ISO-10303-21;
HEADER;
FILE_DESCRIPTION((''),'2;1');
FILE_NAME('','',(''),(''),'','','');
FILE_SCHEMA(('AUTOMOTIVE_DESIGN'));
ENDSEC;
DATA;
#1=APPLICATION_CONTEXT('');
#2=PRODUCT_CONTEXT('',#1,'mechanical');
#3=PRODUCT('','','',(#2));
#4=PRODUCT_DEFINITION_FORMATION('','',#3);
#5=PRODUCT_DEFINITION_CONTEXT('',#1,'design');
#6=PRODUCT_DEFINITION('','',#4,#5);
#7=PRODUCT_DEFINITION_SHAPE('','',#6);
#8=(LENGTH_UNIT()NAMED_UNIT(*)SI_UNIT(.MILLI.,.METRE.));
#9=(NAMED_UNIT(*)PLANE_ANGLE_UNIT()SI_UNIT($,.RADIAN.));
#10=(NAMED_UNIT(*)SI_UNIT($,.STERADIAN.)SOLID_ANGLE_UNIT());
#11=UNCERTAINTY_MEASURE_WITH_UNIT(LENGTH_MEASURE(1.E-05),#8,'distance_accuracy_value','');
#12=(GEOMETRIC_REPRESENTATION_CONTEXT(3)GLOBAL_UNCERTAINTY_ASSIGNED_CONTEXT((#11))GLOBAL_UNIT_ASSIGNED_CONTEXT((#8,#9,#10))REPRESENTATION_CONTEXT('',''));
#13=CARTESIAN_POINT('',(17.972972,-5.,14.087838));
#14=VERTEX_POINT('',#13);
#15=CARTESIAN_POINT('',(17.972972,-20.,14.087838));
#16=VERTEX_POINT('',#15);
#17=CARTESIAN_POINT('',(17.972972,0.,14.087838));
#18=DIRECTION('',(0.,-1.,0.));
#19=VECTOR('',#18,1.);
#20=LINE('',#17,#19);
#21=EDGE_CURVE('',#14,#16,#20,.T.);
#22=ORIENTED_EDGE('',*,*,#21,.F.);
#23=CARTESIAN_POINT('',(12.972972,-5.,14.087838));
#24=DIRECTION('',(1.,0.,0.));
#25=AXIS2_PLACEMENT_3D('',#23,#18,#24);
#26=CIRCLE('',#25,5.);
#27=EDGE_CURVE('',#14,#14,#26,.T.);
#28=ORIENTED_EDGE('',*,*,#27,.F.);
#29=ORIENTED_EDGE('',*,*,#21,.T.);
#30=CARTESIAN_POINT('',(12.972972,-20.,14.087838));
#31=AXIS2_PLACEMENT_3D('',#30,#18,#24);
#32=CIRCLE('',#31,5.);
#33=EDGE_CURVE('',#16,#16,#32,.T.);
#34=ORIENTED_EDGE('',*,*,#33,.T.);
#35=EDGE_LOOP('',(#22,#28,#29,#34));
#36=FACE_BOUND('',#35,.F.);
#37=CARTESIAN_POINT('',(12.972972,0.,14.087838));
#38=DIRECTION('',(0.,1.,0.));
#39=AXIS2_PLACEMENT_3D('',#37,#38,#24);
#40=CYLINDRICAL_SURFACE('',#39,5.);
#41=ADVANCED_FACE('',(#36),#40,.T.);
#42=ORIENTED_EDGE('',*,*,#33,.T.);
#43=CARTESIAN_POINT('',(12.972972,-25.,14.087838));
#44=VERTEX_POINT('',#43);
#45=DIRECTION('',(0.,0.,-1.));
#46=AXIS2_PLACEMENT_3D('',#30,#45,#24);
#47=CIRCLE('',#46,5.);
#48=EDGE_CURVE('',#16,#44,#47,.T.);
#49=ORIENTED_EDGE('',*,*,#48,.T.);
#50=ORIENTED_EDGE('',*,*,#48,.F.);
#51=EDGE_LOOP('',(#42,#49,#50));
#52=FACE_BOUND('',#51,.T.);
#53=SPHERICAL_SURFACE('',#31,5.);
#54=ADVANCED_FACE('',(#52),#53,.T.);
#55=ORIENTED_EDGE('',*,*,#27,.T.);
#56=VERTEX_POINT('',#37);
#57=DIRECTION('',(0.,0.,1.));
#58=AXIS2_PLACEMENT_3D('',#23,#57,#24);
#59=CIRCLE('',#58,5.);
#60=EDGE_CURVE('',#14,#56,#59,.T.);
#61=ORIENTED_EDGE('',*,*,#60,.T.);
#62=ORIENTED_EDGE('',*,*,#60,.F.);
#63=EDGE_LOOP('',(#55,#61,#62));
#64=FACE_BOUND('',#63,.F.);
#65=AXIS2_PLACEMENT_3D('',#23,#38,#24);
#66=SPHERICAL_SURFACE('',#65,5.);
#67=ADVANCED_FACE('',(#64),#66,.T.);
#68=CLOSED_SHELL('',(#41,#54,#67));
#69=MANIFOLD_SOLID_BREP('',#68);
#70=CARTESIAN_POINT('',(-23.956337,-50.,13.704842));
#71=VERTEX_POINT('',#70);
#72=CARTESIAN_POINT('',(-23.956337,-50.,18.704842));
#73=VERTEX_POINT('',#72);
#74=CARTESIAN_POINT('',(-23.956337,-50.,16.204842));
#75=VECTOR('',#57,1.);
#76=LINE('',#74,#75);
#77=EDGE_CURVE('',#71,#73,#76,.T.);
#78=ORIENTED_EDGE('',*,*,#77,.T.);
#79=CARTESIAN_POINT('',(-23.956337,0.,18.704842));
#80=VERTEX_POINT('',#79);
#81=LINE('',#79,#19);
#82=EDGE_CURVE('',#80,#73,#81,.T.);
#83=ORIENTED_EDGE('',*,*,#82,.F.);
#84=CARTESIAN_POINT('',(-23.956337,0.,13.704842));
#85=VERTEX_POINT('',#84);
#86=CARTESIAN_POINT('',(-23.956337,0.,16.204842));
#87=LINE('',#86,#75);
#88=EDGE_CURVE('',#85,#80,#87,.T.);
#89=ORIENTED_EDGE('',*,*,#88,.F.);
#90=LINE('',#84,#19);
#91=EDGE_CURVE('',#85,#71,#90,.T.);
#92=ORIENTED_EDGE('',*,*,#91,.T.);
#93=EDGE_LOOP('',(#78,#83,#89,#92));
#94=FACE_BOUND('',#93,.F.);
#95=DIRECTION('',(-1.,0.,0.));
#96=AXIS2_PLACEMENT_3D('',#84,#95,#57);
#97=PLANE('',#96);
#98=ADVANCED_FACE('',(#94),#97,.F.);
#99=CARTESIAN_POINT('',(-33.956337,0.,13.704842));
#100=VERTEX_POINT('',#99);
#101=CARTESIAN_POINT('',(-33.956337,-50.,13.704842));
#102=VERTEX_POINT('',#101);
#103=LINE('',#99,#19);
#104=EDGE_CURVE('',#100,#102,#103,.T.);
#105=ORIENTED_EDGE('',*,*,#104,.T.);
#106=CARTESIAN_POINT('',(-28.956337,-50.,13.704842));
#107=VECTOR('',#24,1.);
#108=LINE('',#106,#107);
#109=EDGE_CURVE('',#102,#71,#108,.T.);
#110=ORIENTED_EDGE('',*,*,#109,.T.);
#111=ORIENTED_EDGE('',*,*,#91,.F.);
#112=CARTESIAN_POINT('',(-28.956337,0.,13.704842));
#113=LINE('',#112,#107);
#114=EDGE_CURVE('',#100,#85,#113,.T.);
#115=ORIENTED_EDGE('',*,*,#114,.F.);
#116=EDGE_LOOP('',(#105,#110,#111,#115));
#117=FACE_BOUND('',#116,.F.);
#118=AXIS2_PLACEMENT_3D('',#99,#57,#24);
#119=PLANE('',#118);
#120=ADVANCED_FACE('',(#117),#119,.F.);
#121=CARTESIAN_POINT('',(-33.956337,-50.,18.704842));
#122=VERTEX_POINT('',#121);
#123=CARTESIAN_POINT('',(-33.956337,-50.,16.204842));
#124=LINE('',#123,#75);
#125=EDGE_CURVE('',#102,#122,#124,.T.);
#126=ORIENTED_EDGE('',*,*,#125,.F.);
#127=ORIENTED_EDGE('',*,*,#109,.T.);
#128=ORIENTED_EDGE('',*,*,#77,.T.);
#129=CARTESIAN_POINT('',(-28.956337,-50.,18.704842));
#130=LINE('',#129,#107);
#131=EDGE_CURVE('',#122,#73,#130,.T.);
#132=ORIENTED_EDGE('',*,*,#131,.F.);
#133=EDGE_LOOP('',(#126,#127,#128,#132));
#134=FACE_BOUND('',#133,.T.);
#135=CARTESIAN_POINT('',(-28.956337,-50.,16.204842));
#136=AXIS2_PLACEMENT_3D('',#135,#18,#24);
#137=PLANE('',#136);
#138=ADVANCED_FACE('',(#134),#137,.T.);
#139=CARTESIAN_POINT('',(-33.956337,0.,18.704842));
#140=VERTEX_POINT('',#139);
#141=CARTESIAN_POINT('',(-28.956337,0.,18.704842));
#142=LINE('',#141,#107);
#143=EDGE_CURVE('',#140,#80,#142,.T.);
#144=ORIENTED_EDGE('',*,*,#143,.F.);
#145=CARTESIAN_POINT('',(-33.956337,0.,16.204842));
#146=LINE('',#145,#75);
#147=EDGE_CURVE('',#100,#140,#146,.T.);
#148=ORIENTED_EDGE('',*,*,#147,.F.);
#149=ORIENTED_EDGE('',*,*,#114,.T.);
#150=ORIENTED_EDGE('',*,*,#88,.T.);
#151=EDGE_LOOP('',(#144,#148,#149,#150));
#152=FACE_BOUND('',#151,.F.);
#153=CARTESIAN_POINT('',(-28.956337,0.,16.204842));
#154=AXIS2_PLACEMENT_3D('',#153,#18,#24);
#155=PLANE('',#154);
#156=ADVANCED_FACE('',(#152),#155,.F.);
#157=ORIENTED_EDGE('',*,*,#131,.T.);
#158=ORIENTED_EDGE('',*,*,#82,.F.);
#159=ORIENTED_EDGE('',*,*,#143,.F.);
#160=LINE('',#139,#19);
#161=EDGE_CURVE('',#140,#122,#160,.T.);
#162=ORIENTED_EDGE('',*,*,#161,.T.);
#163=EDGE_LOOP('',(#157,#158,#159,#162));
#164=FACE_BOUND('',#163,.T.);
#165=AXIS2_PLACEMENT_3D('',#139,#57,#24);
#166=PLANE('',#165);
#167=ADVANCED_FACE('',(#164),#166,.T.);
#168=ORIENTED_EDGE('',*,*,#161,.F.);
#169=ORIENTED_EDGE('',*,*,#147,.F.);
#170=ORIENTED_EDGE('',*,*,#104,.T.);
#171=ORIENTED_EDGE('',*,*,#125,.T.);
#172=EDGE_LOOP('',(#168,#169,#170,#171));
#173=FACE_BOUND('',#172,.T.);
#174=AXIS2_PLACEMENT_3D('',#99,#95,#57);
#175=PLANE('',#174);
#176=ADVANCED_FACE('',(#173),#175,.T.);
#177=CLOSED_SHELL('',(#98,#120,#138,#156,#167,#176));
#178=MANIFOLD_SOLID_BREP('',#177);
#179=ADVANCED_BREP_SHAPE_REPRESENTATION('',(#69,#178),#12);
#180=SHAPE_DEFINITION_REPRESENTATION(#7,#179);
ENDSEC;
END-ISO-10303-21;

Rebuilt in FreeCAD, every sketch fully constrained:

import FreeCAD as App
import Part
import Sketcher
from FreeCAD import Vector


def edges_at(feature, points):
    """Names of the edges that pass closest to the given points."""
    edges = feature.Shape.Edges
    near = lambda p: min(range(len(edges)), key=lambda i: edges[i].distToShape(Part.Vertex(*p))[0])
    return sorted({f"Edge{near(p) + 1}" for p in points})


def add_polygon(sketch, points):
    """Adds a closed chain of lines whose ends are joined by coincident constraints."""
    first, n = sketch.GeometryCount, len(points)
    for a, b in zip(points, points[1:] + points[:1]):
        sketch.addGeometry(Part.LineSegment(App.Vector(*a, 0), App.Vector(*b, 0)), False)
    for i in range(n):
        sketch.addConstraint(Sketcher.Constraint("Coincident", first + i, 2, first + (i + 1) % n, 1))

doc = App.newDocument("Part")
params = doc.addObject("Spreadsheet::Sheet", "Params")
for row, (alias, value) in enumerate([
    ("sketch1_width", "10 mm"),
    ("sketch1_height", "5 mm"),
    ("pad1_length", "50 mm"),
    ("sketch2_diameter", "10 mm"),
    ("pad2_length", "25 mm"),
    ("fillet_radius", "5 mm"),
], start=1):
    params.set(f"A{row}", alias)
    params.set(f"B{row}", "=" + value)
    params.setAlias(f"B{row}", alias)

body = doc.addObject("PartDesign::Body", "Body")

sketch1 = doc.addObject("Sketcher::SketchObject", "Sketch")
body.addObject(sketch1)
sketch1.AttachmentSupport = (doc.XZ_Plane, [""])
sketch1.MapMode = "FlatFace"
add_polygon(sketch1, [(-34, 19), (-34, 14), (-24, 14), (-24, 19)])
sketch1.addConstraint(Sketcher.Constraint("Vertical", 0))
sketch1.addConstraint(Sketcher.Constraint("Horizontal", 1))
sketch1.addConstraint(Sketcher.Constraint("Vertical", 2))
sketch1.addConstraint(Sketcher.Constraint("Horizontal", 3))
sketch1.addConstraint(Sketcher.Constraint("DistanceX", 1, 1, 1, 2, 10.0))
sketch1.addConstraint(Sketcher.Constraint("DistanceY", 0, 2, 0, 1, 5.0))
sketch1.addConstraint(Sketcher.Constraint("DistanceY", -1, 1, 0, 2, 13.704842))
sketch1.addConstraint(Sketcher.Constraint("DistanceX", 0, 2, -1, 1, 33.956337))
sketch1.setExpression("Constraints[8]", "Params.sketch1_width")
sketch1.setExpression("Constraints[9]", "Params.sketch1_height")
pad1 = doc.addObject("PartDesign::Pad", "Pad")
body.addObject(pad1)
pad1.Profile = sketch1
pad1.setExpression("Length", "Params.pad1_length")
body2 = doc.addObject("PartDesign::Body", "Body001")

sketch2 = doc.addObject("Sketcher::SketchObject", "Sketch001")
body2.addObject(sketch2)
sketch2.AttachmentSupport = (doc.getObject("XZ_Plane001"), [""])
sketch2.MapMode = "FlatFace"
sketch2.addGeometry(Part.Circle(Vector(13, 14, 0), Vector(0, 0, 1), 5), False)
sketch2.addConstraint(Sketcher.Constraint("Diameter", 0, 10.0))
sketch2.addConstraint(Sketcher.Constraint("DistanceX", -1, 1, 0, 3, 12.972972))
sketch2.addConstraint(Sketcher.Constraint("DistanceY", -1, 1, 0, 3, 14.087838))
sketch2.setExpression("Constraints[0]", "Params.sketch2_diameter")
pad2 = doc.addObject("PartDesign::Pad", "Pad001")
body2.addObject(pad2)
pad2.Profile = sketch2
pad2.setExpression("Length", "Params.pad2_length")
doc.recompute()

fillet = doc.addObject("PartDesign::Fillet", "Fillet")
body2.addObject(fillet)
fillet.Base = (pad2, edges_at(pad2, [(7.973, -25, 14.088), (7.973, 0, 14.088)]))
fillet.setExpression("Radius", "Params.fillet_radius")

doc.recompute()
